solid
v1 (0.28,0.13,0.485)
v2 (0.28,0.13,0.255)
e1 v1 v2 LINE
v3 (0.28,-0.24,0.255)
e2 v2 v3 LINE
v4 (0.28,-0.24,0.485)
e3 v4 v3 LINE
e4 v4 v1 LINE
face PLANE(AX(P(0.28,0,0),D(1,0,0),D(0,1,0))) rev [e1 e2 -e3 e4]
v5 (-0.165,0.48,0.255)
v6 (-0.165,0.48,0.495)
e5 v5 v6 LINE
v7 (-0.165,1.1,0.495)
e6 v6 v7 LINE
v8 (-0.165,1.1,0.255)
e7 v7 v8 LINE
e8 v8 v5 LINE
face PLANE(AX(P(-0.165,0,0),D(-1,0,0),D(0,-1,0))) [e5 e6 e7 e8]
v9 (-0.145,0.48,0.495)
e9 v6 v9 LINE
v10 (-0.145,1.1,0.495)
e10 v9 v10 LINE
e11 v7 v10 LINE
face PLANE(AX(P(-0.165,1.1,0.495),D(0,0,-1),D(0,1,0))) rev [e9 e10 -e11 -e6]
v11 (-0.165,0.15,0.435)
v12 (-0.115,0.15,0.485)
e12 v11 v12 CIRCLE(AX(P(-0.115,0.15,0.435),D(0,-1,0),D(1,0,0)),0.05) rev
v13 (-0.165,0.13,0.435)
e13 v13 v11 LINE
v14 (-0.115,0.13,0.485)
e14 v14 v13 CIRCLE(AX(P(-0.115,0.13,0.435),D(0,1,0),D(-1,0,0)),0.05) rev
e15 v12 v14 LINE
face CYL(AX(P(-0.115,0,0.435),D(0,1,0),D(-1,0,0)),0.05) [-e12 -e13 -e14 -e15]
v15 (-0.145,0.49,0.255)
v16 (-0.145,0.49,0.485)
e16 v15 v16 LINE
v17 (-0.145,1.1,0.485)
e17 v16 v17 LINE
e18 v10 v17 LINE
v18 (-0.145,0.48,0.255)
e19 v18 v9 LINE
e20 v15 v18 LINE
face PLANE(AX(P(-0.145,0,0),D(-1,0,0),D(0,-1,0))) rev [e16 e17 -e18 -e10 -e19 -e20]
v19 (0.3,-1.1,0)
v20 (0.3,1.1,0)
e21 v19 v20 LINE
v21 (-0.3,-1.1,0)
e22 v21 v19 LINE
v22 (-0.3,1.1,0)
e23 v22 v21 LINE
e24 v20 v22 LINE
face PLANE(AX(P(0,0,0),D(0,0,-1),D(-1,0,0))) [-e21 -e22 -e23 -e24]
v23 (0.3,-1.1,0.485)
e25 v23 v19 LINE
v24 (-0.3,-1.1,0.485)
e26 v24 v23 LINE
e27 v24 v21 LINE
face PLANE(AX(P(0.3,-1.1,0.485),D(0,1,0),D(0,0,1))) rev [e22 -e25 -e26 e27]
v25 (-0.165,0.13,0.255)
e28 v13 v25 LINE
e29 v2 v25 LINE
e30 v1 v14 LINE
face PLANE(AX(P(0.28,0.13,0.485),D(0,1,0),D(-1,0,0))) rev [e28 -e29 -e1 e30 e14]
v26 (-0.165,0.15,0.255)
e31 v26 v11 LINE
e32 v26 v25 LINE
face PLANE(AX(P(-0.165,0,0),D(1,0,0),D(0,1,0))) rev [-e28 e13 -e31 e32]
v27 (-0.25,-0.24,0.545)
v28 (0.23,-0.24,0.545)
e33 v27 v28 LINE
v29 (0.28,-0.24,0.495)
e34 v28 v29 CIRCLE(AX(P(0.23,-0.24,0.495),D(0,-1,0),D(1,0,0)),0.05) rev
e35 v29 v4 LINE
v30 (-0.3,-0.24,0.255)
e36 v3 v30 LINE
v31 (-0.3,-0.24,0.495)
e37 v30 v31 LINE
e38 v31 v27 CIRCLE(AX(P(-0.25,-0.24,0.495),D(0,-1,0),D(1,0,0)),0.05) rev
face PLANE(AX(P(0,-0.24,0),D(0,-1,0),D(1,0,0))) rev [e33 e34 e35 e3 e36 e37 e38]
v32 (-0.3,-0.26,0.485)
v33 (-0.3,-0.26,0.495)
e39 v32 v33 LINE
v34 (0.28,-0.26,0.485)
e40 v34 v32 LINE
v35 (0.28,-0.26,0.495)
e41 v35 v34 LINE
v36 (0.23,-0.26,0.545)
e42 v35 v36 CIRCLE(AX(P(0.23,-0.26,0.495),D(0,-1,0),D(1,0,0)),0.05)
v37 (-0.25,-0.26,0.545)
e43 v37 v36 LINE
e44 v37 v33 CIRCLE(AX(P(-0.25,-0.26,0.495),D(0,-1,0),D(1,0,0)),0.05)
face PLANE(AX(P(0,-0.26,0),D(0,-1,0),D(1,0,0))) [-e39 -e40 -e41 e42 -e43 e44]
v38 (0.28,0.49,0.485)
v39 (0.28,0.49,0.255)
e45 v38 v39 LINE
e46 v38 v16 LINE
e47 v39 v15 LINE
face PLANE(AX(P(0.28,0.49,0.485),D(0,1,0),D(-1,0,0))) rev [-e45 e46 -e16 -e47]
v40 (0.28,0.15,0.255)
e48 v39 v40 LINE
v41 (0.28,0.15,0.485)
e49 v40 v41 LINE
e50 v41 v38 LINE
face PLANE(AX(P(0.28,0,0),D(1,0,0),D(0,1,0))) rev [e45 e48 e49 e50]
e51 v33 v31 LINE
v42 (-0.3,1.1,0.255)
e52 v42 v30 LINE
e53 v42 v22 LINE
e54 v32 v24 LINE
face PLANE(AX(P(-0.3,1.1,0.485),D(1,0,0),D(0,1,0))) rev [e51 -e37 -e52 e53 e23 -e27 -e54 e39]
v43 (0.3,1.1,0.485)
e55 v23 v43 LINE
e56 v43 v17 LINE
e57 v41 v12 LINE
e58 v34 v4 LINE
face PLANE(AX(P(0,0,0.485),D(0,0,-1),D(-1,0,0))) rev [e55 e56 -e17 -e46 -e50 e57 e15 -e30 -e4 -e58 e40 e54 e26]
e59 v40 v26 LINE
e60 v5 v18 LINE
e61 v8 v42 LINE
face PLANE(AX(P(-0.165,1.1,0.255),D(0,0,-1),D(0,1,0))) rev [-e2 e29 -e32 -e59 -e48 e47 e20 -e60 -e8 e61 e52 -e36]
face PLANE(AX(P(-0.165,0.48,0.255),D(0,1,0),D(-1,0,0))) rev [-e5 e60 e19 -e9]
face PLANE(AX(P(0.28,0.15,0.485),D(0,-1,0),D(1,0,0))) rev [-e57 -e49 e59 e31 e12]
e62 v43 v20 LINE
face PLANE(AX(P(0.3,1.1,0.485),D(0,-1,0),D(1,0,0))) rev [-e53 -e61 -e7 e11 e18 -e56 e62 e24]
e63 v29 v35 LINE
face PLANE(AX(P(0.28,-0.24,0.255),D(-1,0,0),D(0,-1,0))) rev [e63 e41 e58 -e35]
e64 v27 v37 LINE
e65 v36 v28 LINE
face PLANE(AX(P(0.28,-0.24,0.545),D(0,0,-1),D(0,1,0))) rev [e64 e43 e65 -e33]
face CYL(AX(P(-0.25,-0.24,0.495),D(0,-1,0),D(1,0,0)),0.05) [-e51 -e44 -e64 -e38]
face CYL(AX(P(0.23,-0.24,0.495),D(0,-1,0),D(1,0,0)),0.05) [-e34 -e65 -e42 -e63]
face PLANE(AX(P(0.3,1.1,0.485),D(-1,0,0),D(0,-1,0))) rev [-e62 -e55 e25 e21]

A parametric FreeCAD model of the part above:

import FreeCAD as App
import Part
import Sketcher

V = App.Vector


def edges_at(feature, points):
    """Names of the edges that pass closest to the given points."""
    edges = feature.Shape.Edges
    near = lambda p: min(range(len(edges)), key=lambda i: edges[i].distToShape(Part.Vertex(*p))[0])
    return sorted({f"Edge{near(p) + 1}" for p in points})


def add_polygon(sketch, points):
    """Adds a closed chain of lines whose ends are joined by coincident constraints."""
    first, n = sketch.GeometryCount, len(points)
    for a, b in zip(points, points[1:] + points[:1]):
        sketch.addGeometry(Part.LineSegment(App.Vector(*a, 0), App.Vector(*b, 0)), False)
    for i in range(n):
        sketch.addConstraint(Sketcher.Constraint("Coincident", first + i, 2, first + (i + 1) % n, 1))

doc = App.newDocument("Part")
body = doc.addObject("PartDesign::Body", "Body")

# Sketch on XY plane
sketch1 = doc.addObject("Sketcher::SketchObject", "Sketch")
body.addObject(sketch1)
sketch1.AttachmentSupport = (doc.XY_Plane, [""])
sketch1.MapMode = "FlatFace"
add_polygon(sketch1, [(-0.3, 1.1), (-0.3, -1.1), (0.3, -1.1), (0.3, 1.1)])  # lines 0-3
sketch1.addConstraint([
    Sketcher.Constraint("Vertical", 0),
    Sketcher.Constraint("Horizontal", 1),
    Sketcher.Constraint("Vertical", 2),
    Sketcher.Constraint("Horizontal", 3),
    Sketcher.Constraint("Symmetric", 0, 2, 2, 2, -1, 1),
    Sketcher.Constraint("DistanceX", 1, 1, 1, 2, 0.6),
    Sketcher.Constraint("DistanceY", 0, 2, 0, 1, 2.2),
])
pad1 = doc.addObject("PartDesign::Pad", "Pad")
body.addObject(pad1)
pad1.Profile = sketch1
pad1.Length = 0.485

# Sketch on YZ plane
sketch2 = doc.addObject("Sketcher::SketchObject", "Sketch001")
body.addObject(sketch2)
sketch2.AttachmentSupport = (doc.YZ_Plane, [""])
sketch2.MapMode = "FlatFace"
sketch2.AttachmentOffset = App.Placement(V(0, 0, -0.3), App.Rotation())
add_polygon(sketch2, [(1.1, 0.26), (-0.26, 0.26), (-0.26, 0.48), (1.1, 0.48)])  # lines 0-3
sketch2.addConstraint([
    Sketcher.Constraint("Horizontal", 0),
    Sketcher.Constraint("Vertical", 1),
    Sketcher.Constraint("Horizontal", 2),
    Sketcher.Constraint("Vertical", 3),
    Sketcher.Constraint("DistanceX", 0, 2, 0, 1, 1.36),
    Sketcher.Constraint("DistanceY", 1, 1, 1, 2, 0.23),
    Sketcher.Constraint("DistanceX", -1, 1, 2, 2, 1.1),
    Sketcher.Constraint("DistanceY", -1, 1, 0, 2, 0.255),
])
pocket1 = doc.addObject("PartDesign::Pocket", "Pocket")
body.addObject(pocket1)
pocket1.Profile = sketch2
pocket1.Length = 0.135
pocket1.Reversed = True

# Sketch on YZ plane
sketch3 = doc.addObject("Sketcher::SketchObject", "Sketch002")
body.addObject(sketch3)
sketch3.AttachmentSupport = (doc.YZ_Plane, [""])
sketch3.MapMode = "FlatFace"
sketch3.AttachmentOffset = App.Placement(V(0, 0, -0.165), App.Rotation())
add_polygon(sketch3, [(0.13, 0.26), (-0.26, 0.26), (-0.26, 0.48), (0.13, 0.48)])  # lines 0-3
sketch3.addConstraint([
    Sketcher.Constraint("Horizontal", 0),
    Sketcher.Constraint("Vertical", 1),
    Sketcher.Constraint("Horizontal", 2),
    Sketcher.Constraint("Vertical", 3),
    Sketcher.Constraint("DistanceX", 0, 2, 0, 1, 0.39),
    Sketcher.Constraint("DistanceY", 1, 1, 1, 2, 0.23),
    Sketcher.Constraint("DistanceX", 0, 2, -1, 1, 0.26),
    Sketcher.Constraint("DistanceY", -1, 1, 0, 2, 0.255),
])
pocket2 = doc.addObject("PartDesign::Pocket", "Pocket001")
body.addObject(pocket2)
pocket2.Profile = sketch3
pocket2.Length = 0.445
pocket2.Reversed = True

# Sketch on YZ plane
sketch4 = doc.addObject("Sketcher::SketchObject", "Sketch003")
body.addObject(sketch4)
sketch4.AttachmentSupport = (doc.YZ_Plane, [""])
sketch4.MapMode = "FlatFace"
sketch4.AttachmentOffset = App.Placement(V(0, 0, -0.165), App.Rotation())
add_polygon(sketch4, [(0.49, 0.26), (0.15, 0.26), (0.15, 0.48), (0.49, 0.48)])  # lines 0-3
sketch4.addConstraint([
    Sketcher.Constraint("Horizontal", 0),
    Sketcher.Constraint("Vertical", 1),
    Sketcher.Constraint("Horizontal", 2),
    Sketcher.Constraint("Vertical", 3),
    Sketcher.Constraint("DistanceX", 0, 2, 0, 1, 0.34),
    Sketcher.Constraint("DistanceY", 1, 1, 1, 2, 0.23),
    Sketcher.Constraint("DistanceX", -1, 1, 0, 2, 0.15),
    Sketcher.Constraint("DistanceY", -1, 1, 0, 2, 0.255),
])
pocket3 = doc.addObject("PartDesign::Pocket", "Pocket002")
body.addObject(pocket3)
pocket3.Profile = sketch4
pocket3.Length = 0.445
pocket3.Reversed = True

# Sketch on YZ plane
sketch5 = doc.addObject("Sketcher::SketchObject", "Sketch004")
body.addObject(sketch5)
sketch5.AttachmentSupport = (doc.YZ_Plane, [""])
sketch5.MapMode = "FlatFace"
sketch5.AttachmentOffset = App.Placement(V(0, 0, -0.165), App.Rotation())
add_polygon(sketch5, [(1.1, 0.26), (0.49, 0.26), (0.49, 0.48), (1.1, 0.48)])  # lines 0-3
sketch5.addConstraint([
    Sketcher.Constraint("Horizontal", 0),
    Sketcher.Constraint("Vertical", 1),
    Sketcher.Constraint("Horizontal", 2),
    Sketcher.Constraint("Vertical", 3),
    Sketcher.Constraint("DistanceX", 0, 2, 0, 1, 0.61),
    Sketcher.Constraint("DistanceY", 1, 1, 1, 2, 0.23),
    Sketcher.Constraint("DistanceX", -1, 1, 2, 2, 1.1),
    Sketcher.Constraint("DistanceY", -1, 1, 0, 2, 0.255),
])
pocket4 = doc.addObject("PartDesign::Pocket", "Pocket003")
body.addObject(pocket4)
pocket4.Profile = sketch5
pocket4.Length = 0.02
pocket4.Reversed = True

# Sketch on YZ plane
sketch6 = doc.addObject("Sketcher::SketchObject", "Sketch005")
body.addObject(sketch6)
sketch6.AttachmentSupport = (doc.YZ_Plane, [""])
sketch6.MapMode = "FlatFace"
sketch6.AttachmentOffset = App.Placement(V(0, 0, -0.145), App.Rotation())
add_polygon(sketch6, [(1.1, 0.26), (0.48, 0.26), (0.48, 0.49), (1.1, 0.49)])  # lines 0-3
sketch6.addConstraint([
    Sketcher.Constraint("Horizontal", 0),
    Sketcher.Constraint("Vertical", 1),
    Sketcher.Constraint("Horizontal", 2),
    Sketcher.Constraint("Vertical", 3),
    Sketcher.Constraint("DistanceX", 0, 2, 0, 1, 0.62),
    Sketcher.Constraint("DistanceY", 1, 1, 1, 2, 0.24),
    Sketcher.Constraint("DistanceX", -1, 1, 2, 2, 1.1),
    Sketcher.Constraint("DistanceY", -1, 1, 0, 2, 0.255),
])
pad2 = doc.addObject("PartDesign::Pad", "Pad001")
body.addObject(pad2)
pad2.Profile = sketch6
pad2.Length = 0.02
pad2.Reversed = True

# Sketch on XZ plane
sketch7 = doc.addObject("Sketcher::SketchObject", "Sketch006")
body.addObject(sketch7)
sketch7.AttachmentSupport = (doc.XZ_Plane, [""])
sketch7.MapMode = "FlatFace"
sketch7.AttachmentOffset = App.Placement(V(0, 0, 0.26), App.Rotation())
add_polygon(sketch7, [(-0.3, 0.26), (-0.3, 0.55), (0.28, 0.55), (0.28, 0.26)])  # lines 0-3
sketch7.addConstraint([
    Sketcher.Constraint("Vertical", 0),
    Sketcher.Constraint("Horizontal", 1),
    Sketcher.Constraint("Vertical", 2),
    Sketcher.Constraint("Horizontal", 3),
    Sketcher.Constraint("DistanceX", 1, 1, 1, 2, 0.58),
    Sketcher.Constraint("DistanceY", 0, 1, 0, 2, 0.29),
    Sketcher.Constraint("DistanceX", 0, 2, -1, 1, 0.3),
    Sketcher.Constraint("DistanceY", -1, 1, 0, 2, 0.545),
])
pad3 = doc.addObject("PartDesign::Pad", "Pad002")
body.addObject(pad3)
pad3.Profile = sketch7
pad3.Length = 0.02
pad3.Reversed = True
doc.recompute()

fillet = doc.addObject("PartDesign::Fillet", "Fillet")
body.addObject(fillet)
fillet.Base = (pad3, edges_at(pad3, [(-0.3, -0.25, 0.545)]))
fillet.Radius = 0.05
doc.recompute()

fillet2 = doc.addObject("PartDesign::Fillet", "Fillet001")
body.addObject(fillet2)
fillet2.Base = (fillet, edges_at(fillet, [(-0.165, 0.14, 0.485)]))
fillet2.Radius = 0.05
doc.recompute()

fillet3 = doc.addObject("PartDesign::Fillet", "Fillet002")
body.addObject(fillet3)
fillet3.Base = (fillet2, edges_at(fillet2, [(0.28, -0.25, 0.545)]))
fillet3.Radius = 0.05

doc.recompute()
